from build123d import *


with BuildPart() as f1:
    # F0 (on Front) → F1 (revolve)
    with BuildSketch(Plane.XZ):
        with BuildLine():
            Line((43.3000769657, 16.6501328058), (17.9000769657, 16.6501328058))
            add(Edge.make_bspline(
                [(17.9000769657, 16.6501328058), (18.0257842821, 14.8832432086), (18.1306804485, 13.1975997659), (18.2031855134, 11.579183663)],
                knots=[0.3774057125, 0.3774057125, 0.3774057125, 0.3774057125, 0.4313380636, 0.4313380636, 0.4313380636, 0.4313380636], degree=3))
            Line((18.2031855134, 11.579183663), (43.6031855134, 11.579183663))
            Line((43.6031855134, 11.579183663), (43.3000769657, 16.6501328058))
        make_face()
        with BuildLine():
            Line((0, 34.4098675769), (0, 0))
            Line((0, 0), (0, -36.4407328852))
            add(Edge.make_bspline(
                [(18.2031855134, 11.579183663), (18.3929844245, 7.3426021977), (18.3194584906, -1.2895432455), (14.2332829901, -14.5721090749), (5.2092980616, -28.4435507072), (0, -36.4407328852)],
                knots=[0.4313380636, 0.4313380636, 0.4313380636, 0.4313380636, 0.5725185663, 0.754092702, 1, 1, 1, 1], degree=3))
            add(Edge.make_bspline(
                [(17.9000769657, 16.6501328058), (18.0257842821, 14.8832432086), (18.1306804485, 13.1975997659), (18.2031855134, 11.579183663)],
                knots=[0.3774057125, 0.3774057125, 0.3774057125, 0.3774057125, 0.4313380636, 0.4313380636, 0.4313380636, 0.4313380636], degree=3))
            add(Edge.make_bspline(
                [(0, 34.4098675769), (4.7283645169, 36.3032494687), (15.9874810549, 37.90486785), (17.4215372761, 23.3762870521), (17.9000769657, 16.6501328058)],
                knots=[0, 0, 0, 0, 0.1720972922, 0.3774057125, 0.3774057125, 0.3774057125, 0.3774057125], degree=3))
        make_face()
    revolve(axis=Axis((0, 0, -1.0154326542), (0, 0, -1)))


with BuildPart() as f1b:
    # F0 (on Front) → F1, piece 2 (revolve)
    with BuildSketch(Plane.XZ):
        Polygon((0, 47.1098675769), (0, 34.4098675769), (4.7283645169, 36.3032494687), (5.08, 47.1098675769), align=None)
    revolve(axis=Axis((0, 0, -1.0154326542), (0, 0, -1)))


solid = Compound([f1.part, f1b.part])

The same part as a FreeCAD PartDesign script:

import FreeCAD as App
import Part
import Sketcher
from FreeCAD import Vector
Q = App.Units.Quantity

doc = App.newDocument("Part")
params = doc.addObject("Spreadsheet::Sheet", "Params")
for row, (alias, value) in enumerate([
    ("sketch1_width", "1 in"),
    ("revolution_angle", "360 deg"),
    ("sketch2_width", "0.2 in"),
    ("sketch2_height", "0.5 in"),
    ("revolution2_angle", "360 deg"),
], start=1):
    params.set(f"A{row}", alias)
    params.set(f"B{row}", "=" + value)
    params.setAlias(f"B{row}", alias)

body = doc.addObject("PartDesign::Body", "Body")

sketch1 = body.newObject("Sketcher::SketchObject", "Sketch")
sketch1.AttachmentSupport = (doc.getObject("XZ_Plane"), [""])
sketch1.MapMode = "FlatFace"
sketch1.addGeometry([
    Part.LineSegment(Vector(43.300077, 16.650133, 0), Vector(17.900077, 16.650133, 0)),
    Part.BSplineCurve([Vector(0, 34.409868, 0), Vector(4.728365, 36.303249, 0), Vector(15.987481, 37.904868, 0), Vector(17.421537, 23.376287, 0), Vector(17.900077, 16.650133, 0)], [4, 1, 4], [0, 0.172097292, 0.377405712], False, 3, [1, 1, 1, 1, 1], False),
    Part.LineSegment(Vector(0, 34.409868, 0), Vector(0, -36.440733, 0)),
    Part.BSplineCurve([Vector(18.203186, 11.579184, 0), Vector(18.392984, 7.342602, 0), Vector(18.319458, -1.289543, 0), Vector(14.233283, -14.572109, 0), Vector(5.209298, -28.443551, 0), Vector(0, -36.440733, 0)], [4, 1, 1, 4], [0.431338064, 0.572518566, 0.754092702, 1], False, 3, [1, 1, 1, 1, 1, 1], False),
    Part.LineSegment(Vector(18.203186, 11.579184, 0), Vector(43.603186, 11.579184, 0)),
    Part.LineSegment(Vector(43.603186, 11.579184, 0), Vector(43.300077, 16.650133, 0)),
], False)
sketch1.addConstraint([
    Sketcher.Constraint("Block", 1),
    Sketcher.Constraint("Block", 3),
    Sketcher.Constraint("Coincident", 0, 2, 1, 2),
    Sketcher.Constraint("Coincident", 1, 1, 2, 1),
    Sketcher.Constraint("Coincident", 2, 2, 3, 2),
    Sketcher.Constraint("Coincident", 3, 1, 4, 1),
    Sketcher.Constraint("Coincident", 4, 2, 5, 1),
    Sketcher.Constraint("Coincident", 5, 2, 0, 1),
    Sketcher.Constraint("Horizontal", 0),
    Sketcher.Constraint("Horizontal", 4),
    Sketcher.Constraint("Equal", 0, 4),
    Sketcher.Constraint("DistanceX", 0, 2, 0, 1, Q("1 in")),
])
sketch1.setExpression("Constraints[11]", "Params.sketch1_width")
revolution = body.newObject("PartDesign::Revolution", "Revolution")
revolution.Profile = sketch1
revolution.ReferenceAxis = (sketch1, ["V_Axis"])
revolution.setExpression("Angle", "Params.revolution_angle")
body2 = doc.addObject("PartDesign::Body", "Body001")

sketch2 = body2.newObject("Sketcher::SketchObject", "Sketch001")
sketch2.AttachmentSupport = (doc.getObject("XZ_Plane001"), [""])
sketch2.MapMode = "FlatFace"
sketch2.addGeometry([
    Part.LineSegment(Vector(0, 47, 0), Vector(0, 34, 0)),
    Part.LineSegment(Vector(0, 34, 0), Vector(5, 36, 0)),
    Part.LineSegment(Vector(5, 36, 0), Vector(5, 47, 0)),
    Part.LineSegment(Vector(5, 47, 0), Vector(0, 47, 0)),
], False)
sketch2.addConstraint([
    Sketcher.Constraint("Coincident", 0, 2, 1, 1),
    Sketcher.Constraint("Coincident", 1, 2, 2, 1),
    Sketcher.Constraint("Coincident", 2, 2, 3, 1),
    Sketcher.Constraint("Coincident", 3, 2, 0, 1),
    Sketcher.Constraint("Vertical", 0),
    Sketcher.Constraint("Horizontal", 3),
    Sketcher.Constraint("PointOnObject", 0, 2, -2),
    Sketcher.Constraint("DistanceX", 3, 2, 3, 1, Q("0.2 in")),
    Sketcher.Constraint("DistanceY", 0, 2, 0, 1, Q("0.5 in")),
    Sketcher.Constraint("Distance", 1, 5.093361),
    Sketcher.Constraint("DistanceY", -1, 1, 1, 2, 36.303249),
    Sketcher.Constraint("DistanceY", 0, 2, 1, 2, 1.893382),
])
sketch2.setExpression("Constraints[7]", "Params.sketch2_width")
sketch2.setExpression("Constraints[8]", "Params.sketch2_height")
revolution2 = body2.newObject("PartDesign::Revolution", "Revolution001")
revolution2.Profile = sketch2
revolution2.ReferenceAxis = (sketch2, ["V_Axis"])
revolution2.setExpression("Angle", "Params.revolution2_angle")

doc.recompute()
